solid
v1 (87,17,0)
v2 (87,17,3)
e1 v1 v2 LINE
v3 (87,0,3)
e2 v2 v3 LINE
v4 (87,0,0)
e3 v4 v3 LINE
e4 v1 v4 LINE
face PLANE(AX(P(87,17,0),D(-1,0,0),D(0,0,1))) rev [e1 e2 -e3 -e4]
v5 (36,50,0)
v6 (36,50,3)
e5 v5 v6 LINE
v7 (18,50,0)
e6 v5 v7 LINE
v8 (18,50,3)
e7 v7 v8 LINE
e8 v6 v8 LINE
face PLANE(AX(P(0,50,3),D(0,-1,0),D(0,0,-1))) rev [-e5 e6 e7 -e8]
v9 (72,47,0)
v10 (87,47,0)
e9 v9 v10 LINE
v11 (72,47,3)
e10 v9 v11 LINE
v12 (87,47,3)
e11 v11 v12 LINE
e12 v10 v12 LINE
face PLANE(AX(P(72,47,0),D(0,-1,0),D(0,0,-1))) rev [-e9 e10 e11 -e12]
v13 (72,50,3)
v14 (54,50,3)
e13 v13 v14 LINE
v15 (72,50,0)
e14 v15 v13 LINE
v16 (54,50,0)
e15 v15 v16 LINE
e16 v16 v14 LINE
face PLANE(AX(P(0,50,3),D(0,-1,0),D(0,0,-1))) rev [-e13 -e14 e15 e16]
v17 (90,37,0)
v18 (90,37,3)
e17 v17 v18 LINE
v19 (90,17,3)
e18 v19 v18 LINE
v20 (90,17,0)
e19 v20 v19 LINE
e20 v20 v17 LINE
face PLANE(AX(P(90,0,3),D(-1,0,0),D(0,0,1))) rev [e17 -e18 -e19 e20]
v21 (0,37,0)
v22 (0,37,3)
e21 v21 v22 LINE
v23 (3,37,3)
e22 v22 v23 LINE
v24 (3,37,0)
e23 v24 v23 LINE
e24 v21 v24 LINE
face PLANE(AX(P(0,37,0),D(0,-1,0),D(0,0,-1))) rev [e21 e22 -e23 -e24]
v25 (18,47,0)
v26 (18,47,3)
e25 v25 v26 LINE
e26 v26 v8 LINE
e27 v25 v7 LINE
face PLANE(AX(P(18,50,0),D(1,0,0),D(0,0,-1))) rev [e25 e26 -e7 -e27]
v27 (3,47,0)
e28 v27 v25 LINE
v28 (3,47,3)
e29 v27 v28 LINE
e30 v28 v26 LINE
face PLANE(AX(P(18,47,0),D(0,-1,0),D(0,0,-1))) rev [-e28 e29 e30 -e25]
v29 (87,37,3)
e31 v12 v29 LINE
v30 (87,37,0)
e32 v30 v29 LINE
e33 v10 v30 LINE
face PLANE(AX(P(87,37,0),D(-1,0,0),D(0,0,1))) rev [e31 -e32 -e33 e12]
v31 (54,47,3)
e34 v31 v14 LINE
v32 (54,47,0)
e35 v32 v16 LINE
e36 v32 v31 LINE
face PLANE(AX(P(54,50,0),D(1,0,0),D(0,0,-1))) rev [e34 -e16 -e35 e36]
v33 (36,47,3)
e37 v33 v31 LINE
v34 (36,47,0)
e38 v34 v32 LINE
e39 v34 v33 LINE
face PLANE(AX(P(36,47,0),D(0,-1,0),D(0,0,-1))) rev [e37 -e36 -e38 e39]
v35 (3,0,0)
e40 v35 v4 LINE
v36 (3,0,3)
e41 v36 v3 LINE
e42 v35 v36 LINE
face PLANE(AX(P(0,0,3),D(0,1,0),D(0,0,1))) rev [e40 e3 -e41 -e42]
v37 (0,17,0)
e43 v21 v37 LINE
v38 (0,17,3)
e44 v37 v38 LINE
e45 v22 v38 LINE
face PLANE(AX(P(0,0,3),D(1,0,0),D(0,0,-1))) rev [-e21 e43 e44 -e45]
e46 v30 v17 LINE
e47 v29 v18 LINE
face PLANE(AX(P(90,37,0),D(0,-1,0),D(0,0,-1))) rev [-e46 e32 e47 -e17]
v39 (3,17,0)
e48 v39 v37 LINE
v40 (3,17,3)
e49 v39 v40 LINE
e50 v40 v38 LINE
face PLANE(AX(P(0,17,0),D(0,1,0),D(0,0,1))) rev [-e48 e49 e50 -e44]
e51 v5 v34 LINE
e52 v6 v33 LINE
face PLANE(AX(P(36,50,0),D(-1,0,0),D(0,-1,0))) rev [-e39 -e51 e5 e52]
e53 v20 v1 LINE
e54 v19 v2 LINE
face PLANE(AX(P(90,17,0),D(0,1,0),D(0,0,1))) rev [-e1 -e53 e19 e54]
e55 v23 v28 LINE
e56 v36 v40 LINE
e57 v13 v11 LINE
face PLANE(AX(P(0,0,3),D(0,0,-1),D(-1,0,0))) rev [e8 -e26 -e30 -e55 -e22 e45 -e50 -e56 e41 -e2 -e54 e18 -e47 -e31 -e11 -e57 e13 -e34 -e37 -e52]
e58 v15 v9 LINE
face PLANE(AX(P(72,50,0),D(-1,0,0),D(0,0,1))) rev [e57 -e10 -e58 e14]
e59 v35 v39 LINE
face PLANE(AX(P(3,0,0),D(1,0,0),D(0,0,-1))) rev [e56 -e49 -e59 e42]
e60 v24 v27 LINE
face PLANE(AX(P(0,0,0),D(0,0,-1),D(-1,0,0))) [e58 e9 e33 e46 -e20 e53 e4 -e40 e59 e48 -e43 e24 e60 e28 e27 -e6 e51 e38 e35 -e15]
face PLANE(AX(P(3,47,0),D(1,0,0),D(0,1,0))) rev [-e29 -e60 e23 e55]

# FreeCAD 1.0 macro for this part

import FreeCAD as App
import Part
import Sketcher
Q = App.Units.Quantity

doc = App.newDocument("Part")
params = doc.addObject("Spreadsheet::Sheet", "Params")
for row, (alias, value) in enumerate([
    ("sketch1_width", "90 mm"),
    ("sketch1_height", "50 mm"),
    ("pad1_length", "3 mm"),
    ("sketch2_width", "18 mm"),
    ("sketch2_width2", "3 mm"),
    ("sketch2_height", "13 mm"),
    ("sketch2_height2", "17 mm"),
    ("pocket1_length", "3 mm"),
], start=1):
    params.set(f"A{row}", alias)
    params.set(f"B{row}", "=" + value)
    params.setAlias(f"B{row}", alias)

body = doc.addObject("PartDesign::Body", "Body")

# Sketch on XY plane
sketch1 = body.newObject("Sketcher::SketchObject", "Sketch")
sketch1.AttachmentSupport = (doc.getObject("XY_Plane"), [""])
sketch1.MapMode = "FlatFace"
sketch1.addGeometry([
    Part.LineSegment(App.Vector(0, 50, 0), App.Vector(0, 0, 0)),
    Part.LineSegment(App.Vector(0, 0, 0), App.Vector(90, 0, 0)),
    Part.LineSegment(App.Vector(90, 0, 0), App.Vector(90, 50, 0)),
    Part.LineSegment(App.Vector(90, 50, 0), App.Vector(0, 50, 0)),
], False)
sketch1.addConstraint([
    Sketcher.Constraint("Coincident", 0, 2, 1, 1),
    Sketcher.Constraint("Coincident", 1, 2, 2, 1),
    Sketcher.Constraint("Coincident", 2, 2, 3, 1),
    Sketcher.Constraint("Coincident", 3, 2, 0, 1),
    Sketcher.Constraint("Vertical", 0),
    Sketcher.Constraint("Horizontal", 1),
    Sketcher.Constraint("Vertical", 2),
    Sketcher.Constraint("Horizontal", 3),
    Sketcher.Constraint("Coincident", 0, 2, -1, 1),
    Sketcher.Constraint("DistanceX", 1, 1, 1, 2, Q("90 mm")),
    Sketcher.Constraint("DistanceY", 0, 2, 0, 1, Q("50 mm")),
])
sketch1.setExpression("Constraints[9]", "Params.sketch1_width")
sketch1.setExpression("Constraints[10]", "Params.sketch1_height")
pad1 = body.newObject("PartDesign::Pad", "Pad")
pad1.Profile = sketch1
pad1.setExpression("Length", "Params.pad1_length")

# Sketch on XY plane
sketch2 = body.newObject("Sketcher::SketchObject", "Sketch001")
sketch2.AttachmentSupport = (doc.getObject("XY_Plane"), [""])
sketch2.MapMode = "FlatFace"
sketch2.AttachmentOffset = App.Placement(App.Vector(0, 0, 3), App.Rotation())
sketch2.addGeometry([
    Part.LineSegment(App.Vector(18, 50, 0), App.Vector(0, 50, 0)),  # 0
    Part.LineSegment(App.Vector(0, 50, 0), App.Vector(0, 37, 0)),  # 1
    Part.LineSegment(App.Vector(0, 37, 0), App.Vector(3, 37, 0)),  # 2
    Part.LineSegment(App.Vector(3, 37, 0), App.Vector(3, 47, 0)),  # 3
    Part.LineSegment(App.Vector(3, 47, 0), App.Vector(18, 47, 0)),  # 4
    Part.LineSegment(App.Vector(18, 47, 0), App.Vector(18, 50, 0)),  # 5
    Part.LineSegment(App.Vector(36, 50, 0), App.Vector(36, 47, 0)),  # 6
    Part.LineSegment(App.Vector(36, 47, 0), App.Vector(54, 47, 0)),  # 7
    Part.LineSegment(App.Vector(54, 47, 0), App.Vector(54, 50, 0)),  # 8
    Part.LineSegment(App.Vector(54, 50, 0), App.Vector(36, 50, 0)),  # 9
    Part.LineSegment(App.Vector(90, 50, 0), App.Vector(72, 50, 0)),  # 10
    Part.LineSegment(App.Vector(72, 50, 0), App.Vector(72, 47, 0)),  # 11
    Part.LineSegment(App.Vector(72, 47, 0), App.Vector(87, 47, 0)),  # 12
    Part.LineSegment(App.Vector(87, 47, 0), App.Vector(87, 37, 0)),  # 13
    Part.LineSegment(App.Vector(87, 37, 0), App.Vector(90, 37, 0)),  # 14
    Part.LineSegment(App.Vector(90, 37, 0), App.Vector(90, 50, 0)),  # 15
    Part.LineSegment(App.Vector(87, 17, 0), App.Vector(87, 0, 0)),  # 16
    Part.LineSegment(App.Vector(87, 0, 0), App.Vector(90, 0, 0)),  # 17
    Part.LineSegment(App.Vector(90, 0, 0), App.Vector(90, 17, 0)),  # 18
    Part.LineSegment(App.Vector(90, 17, 0), App.Vector(87, 17, 0)),  # 19
    Part.LineSegment(App.Vector(0, 17, 0), App.Vector(0, 0, 0)),  # 20
    Part.LineSegment(App.Vector(0, 0, 0), App.Vector(3, 0, 0)),  # 21
    Part.LineSegment(App.Vector(3, 0, 0), App.Vector(3, 17, 0)),  # 22
    Part.LineSegment(App.Vector(3, 17, 0), App.Vector(0, 17, 0)),  # 23
], False)
sketch2.addConstraint([
    Sketcher.Constraint("Coincident", 0, 2, 1, 1),
    Sketcher.Constraint("Coincident", 1, 2, 2, 1),
    Sketcher.Constraint("Coincident", 2, 2, 3, 1),
    Sketcher.Constraint("Coincident", 3, 2, 4, 1),
    Sketcher.Constraint("Coincident", 4, 2, 5, 1),
    Sketcher.Constraint("Coincident", 5, 2, 0, 1),
    Sketcher.Constraint("Coincident", 6, 2, 7, 1),
    Sketcher.Constraint("Coincident", 7, 2, 8, 1),
    Sketcher.Constraint("Coincident", 8, 2, 9, 1),
    Sketcher.Constraint("Coincident", 9, 2, 6, 1),
    Sketcher.Constraint("Coincident", 10, 2, 11, 1),
    Sketcher.Constraint("Coincident", 11, 2, 12, 1),
    Sketcher.Constraint("Coincident", 12, 2, 13, 1),
    Sketcher.Constraint("Coincident", 13, 2, 14, 1),
    Sketcher.Constraint("Coincident", 14, 2, 15, 1),
    Sketcher.Constraint("Coincident", 15, 2, 10, 1),
    Sketcher.Constraint("Coincident", 16, 2, 17, 1),
    Sketcher.Constraint("Coincident", 17, 2, 18, 1),
    Sketcher.Constraint("Coincident", 18, 2, 19, 1),
    Sketcher.Constraint("Coincident", 19, 2, 16, 1),
    Sketcher.Constraint("Coincident", 20, 2, 21, 1),
    Sketcher.Constraint("Coincident", 21, 2, 22, 1),
    Sketcher.Constraint("Coincident", 22, 2, 23, 1),
    Sketcher.Constraint("Coincident", 23, 2, 20, 1),
    Sketcher.Constraint("Horizontal", 0),
    Sketcher.Constraint("Vertical", 1),
    Sketcher.Constraint("Horizontal", 2),
    Sketcher.Constraint("Vertical", 3),
    Sketcher.Constraint("Horizontal", 4),
    Sketcher.Constraint("Vertical", 5),
    Sketcher.Constraint("Vertical", 6),
    Sketcher.Constraint("Horizontal", 7),
    Sketcher.Constraint("Vertical", 8),
    Sketcher.Constraint("Horizontal", 9),
    Sketcher.Constraint("Horizontal", 10),
    Sketcher.Constraint("Vertical", 11),
    Sketcher.Constraint("Horizontal", 12),
    Sketcher.Constraint("Vertical", 13),
    Sketcher.Constraint("Horizontal", 14),
    Sketcher.Constraint("Vertical", 15),
    Sketcher.Constraint("Vertical", 16),
    Sketcher.Constraint("Horizontal", 17),
    Sketcher.Constraint("Vertical", 18),
    Sketcher.Constraint("Horizontal", 19),
    Sketcher.Constraint("Vertical", 20),
    Sketcher.Constraint("Horizontal", 21),
    Sketcher.Constraint("Vertical", 22),
    Sketcher.Constraint("Horizontal", 23),
    Sketcher.Constraint("Coincident", 20, 2, -1, 1),
    Sketcher.Constraint("PointOnObject", 0, 2, -2),
    Sketcher.Constraint("PointOnObject", 16, 2, -1),
    Sketcher.Constraint("Horizontal", 4, 2, 6, 2),
    Sketcher.Constraint("Horizontal", 5, 2, 8, 2),
    Sketcher.Constraint("Horizontal", 9, 2, 10, 2),
    Sketcher.Constraint("Horizontal", 7, 2, 11, 2),
    Sketcher.Constraint("Horizontal", 2, 2, 13, 2),
    Sketcher.Constraint("Horizontal", 19, 2, 22, 2),
    Sketcher.Constraint("Vertical", 13, 2, 16, 2),
    Sketcher.Constraint("Vertical", 15, 2, 17, 2),
    Sketcher.Constraint("Vertical", 3, 2, 21, 2),
    Sketcher.Constraint("Equal", 0, 7),
    Sketcher.Constraint("Equal", 9, 10),
    Sketcher.Constraint("Equal", 4, 12),
    Sketcher.Constraint("Equal", 23, 5),
    Sketcher.Constraint("DistanceX", 0, 2, 0, 1, Q("18 mm")),
    Sketcher.Constraint("DistanceX", 2, 1, 2, 2, Q("3 mm")),
    Sketcher.Constraint("DistanceY", 1, 2, 1, 1, Q("13 mm")),
    Sketcher.Constraint("DistanceY", 16, 2, 16, 1, Q("17 mm")),
    Sketcher.Constraint("DistanceY", -1, 1, 0, 2, Q("50 mm")),
    Sketcher.Constraint("DistanceX", -1, 1, 6, 2, Q("36 mm")),
    Sketcher.Constraint("DistanceX", -1, 1, 10, 2, Q("72 mm")),
])
sketch2.setExpression("Constraints[64]", "Params.sketch2_width")
sketch2.setExpression("Constraints[65]", "Params.sketch2_width2")
sketch2.setExpression("Constraints[66]", "Params.sketch2_height")
sketch2.setExpression("Constraints[67]", "Params.sketch2_height2")
pocket1 = body.newObject("PartDesign::Pocket", "Pocket")
pocket1.Profile = sketch2
pocket1.setExpression("Length", "Params.pocket1_length")

doc.recompute()
